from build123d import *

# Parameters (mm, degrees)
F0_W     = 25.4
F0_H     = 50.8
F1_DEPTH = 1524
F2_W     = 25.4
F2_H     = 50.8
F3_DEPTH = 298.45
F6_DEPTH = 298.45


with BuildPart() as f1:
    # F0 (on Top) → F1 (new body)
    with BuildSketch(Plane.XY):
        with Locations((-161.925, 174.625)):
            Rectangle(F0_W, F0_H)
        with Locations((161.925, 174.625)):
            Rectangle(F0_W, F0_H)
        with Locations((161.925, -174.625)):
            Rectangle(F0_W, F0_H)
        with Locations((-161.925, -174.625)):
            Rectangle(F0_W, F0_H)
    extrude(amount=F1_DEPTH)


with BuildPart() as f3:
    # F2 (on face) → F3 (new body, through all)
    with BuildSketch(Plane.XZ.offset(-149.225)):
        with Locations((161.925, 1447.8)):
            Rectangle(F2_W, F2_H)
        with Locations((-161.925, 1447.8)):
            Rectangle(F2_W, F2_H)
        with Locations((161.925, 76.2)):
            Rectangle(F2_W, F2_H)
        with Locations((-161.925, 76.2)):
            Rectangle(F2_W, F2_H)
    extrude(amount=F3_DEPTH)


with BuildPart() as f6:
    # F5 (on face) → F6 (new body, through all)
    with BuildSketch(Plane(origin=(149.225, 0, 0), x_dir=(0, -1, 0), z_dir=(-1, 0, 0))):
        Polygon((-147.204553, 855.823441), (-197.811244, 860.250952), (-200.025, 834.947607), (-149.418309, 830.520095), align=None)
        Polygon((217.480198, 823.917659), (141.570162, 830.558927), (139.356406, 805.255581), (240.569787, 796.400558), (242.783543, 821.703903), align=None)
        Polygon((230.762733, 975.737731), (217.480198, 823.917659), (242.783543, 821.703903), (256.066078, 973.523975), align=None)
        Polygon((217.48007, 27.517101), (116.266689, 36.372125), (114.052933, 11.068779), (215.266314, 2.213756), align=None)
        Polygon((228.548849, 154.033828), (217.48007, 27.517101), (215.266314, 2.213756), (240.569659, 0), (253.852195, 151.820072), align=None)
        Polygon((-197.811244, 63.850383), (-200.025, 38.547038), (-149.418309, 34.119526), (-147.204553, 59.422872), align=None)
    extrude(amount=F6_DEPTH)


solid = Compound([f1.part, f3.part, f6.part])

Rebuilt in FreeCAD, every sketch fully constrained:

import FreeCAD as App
import Part
import Sketcher
from FreeCAD import Vector
Q = App.Units.Quantity


def add_polygon(sketch, points):
    """Adds a closed chain of lines whose ends are joined by coincident constraints."""
    first, n = sketch.GeometryCount, len(points)
    for a, b in zip(points, points[1:] + points[:1]):
        sketch.addGeometry(Part.LineSegment(App.Vector(*a, 0), App.Vector(*b, 0)), False)
    for i in range(n):
        sketch.addConstraint(Sketcher.Constraint("Coincident", first + i, 2, first + (i + 1) % n, 1))

doc = App.newDocument("Part")
body = doc.addObject("PartDesign::Body", "Body")
body.AllowCompound = True

# Sketch on XY plane
sketch1 = body.newObject("Sketcher::SketchObject", "Sketch")
sketch1.AttachmentSupport = (doc.getObject("XY_Plane"), [""])
sketch1.MapMode = "FlatFace"
add_polygon(sketch1, [(-174.625, 200.025), (-174.625, 149.225), (-149.225, 149.225), (-149.225, 200.025)])  # lines 0-3
add_polygon(sketch1, [(149.225, 200.025), (149.225, 149.225), (174.625, 149.225), (174.625, 200.025)])  # lines 4-7
add_polygon(sketch1, [(149.225, -149.225), (149.225, -200.025), (174.625, -200.025), (174.625, -149.225)])  # lines 8-11
add_polygon(sketch1, [(-174.625, -149.225), (-174.625, -200.025), (-149.225, -200.025), (-149.225, -149.225)])  # lines 12-15
sketch1.addConstraint([
    Sketcher.Constraint("Vertical", 0),
    Sketcher.Constraint("Horizontal", 1),
    Sketcher.Constraint("Vertical", 2),
    Sketcher.Constraint("Horizontal", 3),
    Sketcher.Constraint("Vertical", 4),
    Sketcher.Constraint("Horizontal", 5),
    Sketcher.Constraint("Vertical", 6),
    Sketcher.Constraint("Horizontal", 7),
    Sketcher.Constraint("Vertical", 8),
    Sketcher.Constraint("Horizontal", 9),
    Sketcher.Constraint("Vertical", 10),
    Sketcher.Constraint("Horizontal", 11),
    Sketcher.Constraint("Vertical", 12),
    Sketcher.Constraint("Horizontal", 13),
    Sketcher.Constraint("Vertical", 14),
    Sketcher.Constraint("Horizontal", 15),
    Sketcher.Constraint("Symmetric", 2, 2, 8, 2, -1, 1),
    Sketcher.Constraint("Symmetric", 0, 2, 10, 2, -1, 1),
    Sketcher.Constraint("Symmetric", 6, 2, 12, 2, -1, 1),
    Sketcher.Constraint("Symmetric", 4, 2, 14, 2, -1, 1),
    Sketcher.Constraint("Symmetric", 1, 2, 4, 2, -2),
    Sketcher.Constraint("Symmetric", 3, 2, 6, 2, -2),
    Sketcher.Constraint("DistanceX", 1, 1, 1, 2, Q("1 in")),
    Sketcher.Constraint("DistanceY", 0, 2, 0, 1, Q("2 in")),
    Sketcher.Constraint("DistanceX", 1, 2, 4, 2, Q("11.75 in")),
    Sketcher.Constraint("DistanceY", 8, 2, 4, 2, Q("13.75 in")),
])
pad1 = body.newObject("PartDesign::Pad", "Pad")
pad1.Profile = sketch1
pad1.Length = Q("60 in")
body2 = doc.addObject("PartDesign::Body", "Body001")
body2.AllowCompound = True

# Sketch on XZ plane
sketch2 = body2.newObject("Sketcher::SketchObject", "Sketch001")
sketch2.AttachmentSupport = (doc.getObject("XZ_Plane001"), [""])
sketch2.MapMode = "FlatFace"
sketch2.AttachmentOffset = App.Placement(Vector(0, 0, -5.875 * 25.4), App.Rotation())
add_polygon(sketch2, [(149.225, 1473.2), (149.225, 1422.4), (174.625, 1422.4), (174.625, 1473.2)])  # lines 0-3
add_polygon(sketch2, [(-174.625, 1473.2), (-174.625, 1422.4), (-149.225, 1422.4), (-149.225, 1473.2)])  # lines 4-7
add_polygon(sketch2, [(149.225, 101.6), (149.225, 50.8), (174.625, 50.8), (174.625, 101.6)])  # lines 8-11
add_polygon(sketch2, [(-174.625, 101.6), (-174.625, 50.8), (-149.225, 50.8), (-149.225, 101.6)])  # lines 12-15
sketch2.addConstraint([
    Sketcher.Constraint("Vertical", 0),
    Sketcher.Constraint("Horizontal", 1),
    Sketcher.Constraint("Vertical", 2),
    Sketcher.Constraint("Horizontal", 3),
    Sketcher.Constraint("Vertical", 4),
    Sketcher.Constraint("Horizontal", 5),
    Sketcher.Constraint("Vertical", 6),
    Sketcher.Constraint("Horizontal", 7),
    Sketcher.Constraint("Vertical", 8),
    Sketcher.Constraint("Horizontal", 9),
    Sketcher.Constraint("Vertical", 10),
    Sketcher.Constraint("Horizontal", 11),
    Sketcher.Constraint("Vertical", 12),
    Sketcher.Constraint("Horizontal", 13),
    Sketcher.Constraint("Vertical", 14),
    Sketcher.Constraint("Horizontal", 15),
    Sketcher.Constraint("Symmetric", 1, 2, 4, 2, -2),
    Sketcher.Constraint("Symmetric", 3, 2, 6, 2, -2),
    Sketcher.Constraint("Symmetric", 9, 2, 12, 2, -2),
    Sketcher.Constraint("Symmetric", 11, 2, 14, 2, -2),
    Sketcher.Constraint("Vertical", 3, 2, 8, 2),
    Sketcher.Constraint("Vertical", 2, 2, 9, 2),
    Sketcher.Constraint("Equal", 6, 8),
    Sketcher.Constraint("DistanceX", 1, 1, 1, 2, Q("1 in")),
    Sketcher.Constraint("DistanceY", 0, 2, 0, 1, Q("2 in")),
    Sketcher.Constraint("DistanceY", -1, 1, 0, 2, Q("56 in")),
    Sketcher.Constraint("DistanceY", -1, 1, 8, 2, Q("2 in")),
    Sketcher.Constraint("DistanceX", 4, 2, 0, 2, Q("12.75 in")),
])
pad2 = body2.newObject("PartDesign::Pad", "Pad001")
pad2.Profile = sketch2
pad2.Length = Q("11.75 in")
body3 = doc.addObject("PartDesign::Body", "Body002")
body3.AllowCompound = True

# Sketch on YZ plane
sketch3 = body3.newObject("Sketcher::SketchObject", "Sketch002")
sketch3.AttachmentSupport = (doc.getObject("YZ_Plane002"), [""])
sketch3.MapMode = "FlatFace"
sketch3.AttachmentOffset = App.Placement(Vector(0, 0, 5.875 * 25.4), App.Rotation())
add_polygon(sketch3, [(147.204553, 855.823441), (197.811244, 860.250952), (200.025, 834.947607), (149.418309, 830.520095)])  # lines 0-3
add_polygon(sketch3, [(-217.480198, 823.917659), (-141.570162, 830.558927), (-139.356406, 805.255581), (-240.569787, 796.400558), (-242.783543, 821.703903), (-256.066078, 973.523975), (-230.762733, 975.737731)])  # lines 4-10
add_polygon(sketch3, [(-217.48007, 27.517101), (-116.266689, 36.372125), (-114.052933, 11.068779), (-215.266314, 2.213756), (-240.569659, 0), (-253.852195, 151.820072), (-228.548849, 154.033828)])  # lines 11-17
add_polygon(sketch3, [(197.811244, 63.850383), (200.025, 38.547038), (149.418309, 34.119526), (147.204553, 59.422872)])  # lines 18-21
sketch3.addConstraint([
    Sketcher.Constraint("PointOnObject", 14, 2, -1),
    Sketcher.Constraint("Perpendicular", 0, 1),
    Sketcher.Constraint("Perpendicular", 1, 2),
    Sketcher.Constraint("Perpendicular", 2, 3),
    Sketcher.Constraint("Perpendicular", 3, 4),
    Sketcher.Constraint("Perpendicular", 4, 5),
    Sketcher.Constraint("Perpendicular", 5, 6),
    Sketcher.Constraint("Perpendicular", 6, 7),
    Sketcher.Constraint("Parallel", 7, 8),
    Sketcher.Constraint("Perpendicular", 8, 9),
    Sketcher.Constraint("Perpendicular", 9, 10),
    Sketcher.Constraint("Perpendicular", 10, 11),
    Sketcher.Constraint("Perpendicular", 11, 12),
    Sketcher.Constraint("Perpendicular", 12, 13),
    Sketcher.Constraint("Parallel", 13, 14),
    Sketcher.Constraint("Perpendicular", 14, 15),
    Sketcher.Constraint("Perpendicular", 15, 16),
    Sketcher.Constraint("Perpendicular", 16, 17),
    Sketcher.Constraint("Parallel", 17, 18),
    Sketcher.Constraint("Perpendicular", 18, 19),
    Sketcher.Constraint("Perpendicular", 19, 20),
    Sketcher.Constraint("Perpendicular", 20, 21),
    Sketcher.Constraint("Vertical", 1, 2, 18, 2),
    Sketcher.Constraint("Vertical", 2, 2, 19, 2),
    Sketcher.Constraint("Vertical", 3, 2, 20, 2),
    Sketcher.Constraint("Equal", 3, 5),
    Sketcher.Constraint("Equal", 5, 7),
    Sketcher.Constraint("Equal", 7, 9),
    Sketcher.Constraint("Equal", 6, 11),
    Sketcher.Constraint("Equal", 9, 12),
    Sketcher.Constraint("Equal", 11, 13),
    Sketcher.Constraint("Equal", 12, 14),
    Sketcher.Constraint("Equal", 10, 15),
    Sketcher.Constraint("Distance", 0, Q("2 in")),
    Sketcher.Constraint("Distance", 1, Q("1 in")),
    Sketcher.Constraint("Distance", 4, Q("3 in")),
    Sketcher.Constraint("Distance", 8, Q("6 in")),
    Sketcher.Constraint("Angle", 0, Q("4.999999 deg")),
    Sketcher.Constraint("DistanceX", -1, 1, 1, 2, Q("7.875 in")),
    Sketcher.Constraint("DistanceY", -1, 1, 18, 2, Q("1.5175999 in")),
    Sketcher.Constraint("DistanceX", 10, 2, -1, 1, Q("217.480198 mm")),
    Sketcher.Constraint("DistanceX", 11, 2, 19, 2, Q("265.684998 mm")),
    Sketcher.Constraint("DistanceY", -1, 1, 0, 2, Q("860.250952 mm")),
    Sketcher.Constraint("DistanceY", -1, 1, 5, 2, Q("805.255581 mm")),
])
pad3 = body3.newObject("PartDesign::Pad", "Pad002")
pad3.Profile = sketch3
pad3.Length = Q("11.75 in")
pad3.Reversed = True

doc.recompute()
